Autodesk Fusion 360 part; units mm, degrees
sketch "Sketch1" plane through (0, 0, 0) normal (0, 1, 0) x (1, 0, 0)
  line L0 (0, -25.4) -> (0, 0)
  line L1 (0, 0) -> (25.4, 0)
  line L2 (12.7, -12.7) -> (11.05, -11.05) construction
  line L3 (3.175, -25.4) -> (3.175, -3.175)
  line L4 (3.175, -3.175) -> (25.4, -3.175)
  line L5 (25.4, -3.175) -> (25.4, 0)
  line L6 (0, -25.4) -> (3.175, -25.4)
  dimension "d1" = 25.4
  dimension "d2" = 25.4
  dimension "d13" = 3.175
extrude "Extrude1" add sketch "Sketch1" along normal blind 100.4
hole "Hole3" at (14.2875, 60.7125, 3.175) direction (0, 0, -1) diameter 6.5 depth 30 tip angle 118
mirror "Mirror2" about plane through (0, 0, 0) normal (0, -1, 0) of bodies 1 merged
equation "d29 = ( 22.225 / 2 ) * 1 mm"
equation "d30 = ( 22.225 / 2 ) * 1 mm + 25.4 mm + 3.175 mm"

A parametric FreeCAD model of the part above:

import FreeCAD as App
import Part
import Sketcher
from FreeCAD import Vector
Q = App.Units.Quantity


def add_polygon(sketch, points):
    """Adds a closed chain of lines whose ends are joined by coincident constraints."""
    first, n = sketch.GeometryCount, len(points)
    for a, b in zip(points, points[1:] + points[:1]):
        sketch.addGeometry(Part.LineSegment(App.Vector(*a, 0), App.Vector(*b, 0)), False)
    for i in range(n):
        sketch.addConstraint(Sketcher.Constraint("Coincident", first + i, 2, first + (i + 1) % n, 1))

doc = App.newDocument("Part")
body = doc.addObject("PartDesign::Body", "Body")

sketch1 = body.newObject("Sketcher::SketchObject", "Sketch")
sketch1.AttachmentSupport = (doc.getObject("XZ_Plane"), [""])
sketch1.MapMode = "FlatFace"
add_polygon(sketch1, [(0, 0), (0, 25.4), (3.175, 25.4), (3.175, 3.175), (25.4, 3.175), (25.4, 0)])
sketch1.addConstraint(Sketcher.Constraint("Vertical", 0))
sketch1.addConstraint(Sketcher.Constraint("Horizontal", 1))
sketch1.addConstraint(Sketcher.Constraint("Vertical", 2))
sketch1.addConstraint(Sketcher.Constraint("Horizontal", 3))
sketch1.addConstraint(Sketcher.Constraint("Vertical", 4))
sketch1.addConstraint(Sketcher.Constraint("Horizontal", 5))
sketch1.addConstraint(Sketcher.Constraint("Coincident", 5, 2, -1, 1))
sketch1.addConstraint(Sketcher.Constraint("Equal", 5, 0))
sketch1.addConstraint(Sketcher.Constraint("Equal", 3, 2))
sketch1.addConstraint(Sketcher.Constraint("DistanceX", 5, 2, 5, 1, Q("1 in")))
sketch1.addConstraint(Sketcher.Constraint("DistanceX", 1, 1, 1, 2, Q("0.125 in")))
pad1 = body.newObject("PartDesign::Pad", "Pad")
pad1.Profile = sketch1
pad1.Length = 100.4
pad1.Reversed = True

sketch2 = body.newObject("Sketcher::SketchObject", "Sketch001")
sketch2.AttachmentSupport = (doc.getObject("XY_Plane"), [""])
sketch2.MapMode = "FlatFace"
sketch2.AttachmentOffset = App.Placement(Vector(0, 0, 0.125 * 25.4), App.Rotation())
sketch2.addGeometry(Part.Circle(Vector(14.2875, 60.7125, 0), Vector(0, 0, 1), 3.25), False)
sketch2.addConstraint(Sketcher.Constraint("Diameter", 0, Q("0.2559 in")))
sketch2.addConstraint(Sketcher.Constraint("DistanceX", -1, 1, 0, 3, Q("0.5625 in")))
sketch2.addConstraint(Sketcher.Constraint("DistanceY", -1, 1, 0, 3, Q("60.7125 mm")))
doc.recompute()
hole = body.newObject("PartDesign::Hole", "Hole")
hole.Profile = sketch2
hole.ThreadType = "None"
hole.Diameter = Q("0.2559055 in")
hole.DepthType = "Dimension"
hole.Depth = Q("1.1811024 in")
hole.DrillPoint = "Angled"
hole.DrillPointAngle = 118
doc.recompute()

mirrored = body.newObject("PartDesign::Mirrored", "Mirrored")
mirrored.TransformMode = "Transform body"
mirrored.MirrorPlane = (doc.getObject("XZ_Plane"), [""])
body.Tip = mirrored

doc.recompute()
